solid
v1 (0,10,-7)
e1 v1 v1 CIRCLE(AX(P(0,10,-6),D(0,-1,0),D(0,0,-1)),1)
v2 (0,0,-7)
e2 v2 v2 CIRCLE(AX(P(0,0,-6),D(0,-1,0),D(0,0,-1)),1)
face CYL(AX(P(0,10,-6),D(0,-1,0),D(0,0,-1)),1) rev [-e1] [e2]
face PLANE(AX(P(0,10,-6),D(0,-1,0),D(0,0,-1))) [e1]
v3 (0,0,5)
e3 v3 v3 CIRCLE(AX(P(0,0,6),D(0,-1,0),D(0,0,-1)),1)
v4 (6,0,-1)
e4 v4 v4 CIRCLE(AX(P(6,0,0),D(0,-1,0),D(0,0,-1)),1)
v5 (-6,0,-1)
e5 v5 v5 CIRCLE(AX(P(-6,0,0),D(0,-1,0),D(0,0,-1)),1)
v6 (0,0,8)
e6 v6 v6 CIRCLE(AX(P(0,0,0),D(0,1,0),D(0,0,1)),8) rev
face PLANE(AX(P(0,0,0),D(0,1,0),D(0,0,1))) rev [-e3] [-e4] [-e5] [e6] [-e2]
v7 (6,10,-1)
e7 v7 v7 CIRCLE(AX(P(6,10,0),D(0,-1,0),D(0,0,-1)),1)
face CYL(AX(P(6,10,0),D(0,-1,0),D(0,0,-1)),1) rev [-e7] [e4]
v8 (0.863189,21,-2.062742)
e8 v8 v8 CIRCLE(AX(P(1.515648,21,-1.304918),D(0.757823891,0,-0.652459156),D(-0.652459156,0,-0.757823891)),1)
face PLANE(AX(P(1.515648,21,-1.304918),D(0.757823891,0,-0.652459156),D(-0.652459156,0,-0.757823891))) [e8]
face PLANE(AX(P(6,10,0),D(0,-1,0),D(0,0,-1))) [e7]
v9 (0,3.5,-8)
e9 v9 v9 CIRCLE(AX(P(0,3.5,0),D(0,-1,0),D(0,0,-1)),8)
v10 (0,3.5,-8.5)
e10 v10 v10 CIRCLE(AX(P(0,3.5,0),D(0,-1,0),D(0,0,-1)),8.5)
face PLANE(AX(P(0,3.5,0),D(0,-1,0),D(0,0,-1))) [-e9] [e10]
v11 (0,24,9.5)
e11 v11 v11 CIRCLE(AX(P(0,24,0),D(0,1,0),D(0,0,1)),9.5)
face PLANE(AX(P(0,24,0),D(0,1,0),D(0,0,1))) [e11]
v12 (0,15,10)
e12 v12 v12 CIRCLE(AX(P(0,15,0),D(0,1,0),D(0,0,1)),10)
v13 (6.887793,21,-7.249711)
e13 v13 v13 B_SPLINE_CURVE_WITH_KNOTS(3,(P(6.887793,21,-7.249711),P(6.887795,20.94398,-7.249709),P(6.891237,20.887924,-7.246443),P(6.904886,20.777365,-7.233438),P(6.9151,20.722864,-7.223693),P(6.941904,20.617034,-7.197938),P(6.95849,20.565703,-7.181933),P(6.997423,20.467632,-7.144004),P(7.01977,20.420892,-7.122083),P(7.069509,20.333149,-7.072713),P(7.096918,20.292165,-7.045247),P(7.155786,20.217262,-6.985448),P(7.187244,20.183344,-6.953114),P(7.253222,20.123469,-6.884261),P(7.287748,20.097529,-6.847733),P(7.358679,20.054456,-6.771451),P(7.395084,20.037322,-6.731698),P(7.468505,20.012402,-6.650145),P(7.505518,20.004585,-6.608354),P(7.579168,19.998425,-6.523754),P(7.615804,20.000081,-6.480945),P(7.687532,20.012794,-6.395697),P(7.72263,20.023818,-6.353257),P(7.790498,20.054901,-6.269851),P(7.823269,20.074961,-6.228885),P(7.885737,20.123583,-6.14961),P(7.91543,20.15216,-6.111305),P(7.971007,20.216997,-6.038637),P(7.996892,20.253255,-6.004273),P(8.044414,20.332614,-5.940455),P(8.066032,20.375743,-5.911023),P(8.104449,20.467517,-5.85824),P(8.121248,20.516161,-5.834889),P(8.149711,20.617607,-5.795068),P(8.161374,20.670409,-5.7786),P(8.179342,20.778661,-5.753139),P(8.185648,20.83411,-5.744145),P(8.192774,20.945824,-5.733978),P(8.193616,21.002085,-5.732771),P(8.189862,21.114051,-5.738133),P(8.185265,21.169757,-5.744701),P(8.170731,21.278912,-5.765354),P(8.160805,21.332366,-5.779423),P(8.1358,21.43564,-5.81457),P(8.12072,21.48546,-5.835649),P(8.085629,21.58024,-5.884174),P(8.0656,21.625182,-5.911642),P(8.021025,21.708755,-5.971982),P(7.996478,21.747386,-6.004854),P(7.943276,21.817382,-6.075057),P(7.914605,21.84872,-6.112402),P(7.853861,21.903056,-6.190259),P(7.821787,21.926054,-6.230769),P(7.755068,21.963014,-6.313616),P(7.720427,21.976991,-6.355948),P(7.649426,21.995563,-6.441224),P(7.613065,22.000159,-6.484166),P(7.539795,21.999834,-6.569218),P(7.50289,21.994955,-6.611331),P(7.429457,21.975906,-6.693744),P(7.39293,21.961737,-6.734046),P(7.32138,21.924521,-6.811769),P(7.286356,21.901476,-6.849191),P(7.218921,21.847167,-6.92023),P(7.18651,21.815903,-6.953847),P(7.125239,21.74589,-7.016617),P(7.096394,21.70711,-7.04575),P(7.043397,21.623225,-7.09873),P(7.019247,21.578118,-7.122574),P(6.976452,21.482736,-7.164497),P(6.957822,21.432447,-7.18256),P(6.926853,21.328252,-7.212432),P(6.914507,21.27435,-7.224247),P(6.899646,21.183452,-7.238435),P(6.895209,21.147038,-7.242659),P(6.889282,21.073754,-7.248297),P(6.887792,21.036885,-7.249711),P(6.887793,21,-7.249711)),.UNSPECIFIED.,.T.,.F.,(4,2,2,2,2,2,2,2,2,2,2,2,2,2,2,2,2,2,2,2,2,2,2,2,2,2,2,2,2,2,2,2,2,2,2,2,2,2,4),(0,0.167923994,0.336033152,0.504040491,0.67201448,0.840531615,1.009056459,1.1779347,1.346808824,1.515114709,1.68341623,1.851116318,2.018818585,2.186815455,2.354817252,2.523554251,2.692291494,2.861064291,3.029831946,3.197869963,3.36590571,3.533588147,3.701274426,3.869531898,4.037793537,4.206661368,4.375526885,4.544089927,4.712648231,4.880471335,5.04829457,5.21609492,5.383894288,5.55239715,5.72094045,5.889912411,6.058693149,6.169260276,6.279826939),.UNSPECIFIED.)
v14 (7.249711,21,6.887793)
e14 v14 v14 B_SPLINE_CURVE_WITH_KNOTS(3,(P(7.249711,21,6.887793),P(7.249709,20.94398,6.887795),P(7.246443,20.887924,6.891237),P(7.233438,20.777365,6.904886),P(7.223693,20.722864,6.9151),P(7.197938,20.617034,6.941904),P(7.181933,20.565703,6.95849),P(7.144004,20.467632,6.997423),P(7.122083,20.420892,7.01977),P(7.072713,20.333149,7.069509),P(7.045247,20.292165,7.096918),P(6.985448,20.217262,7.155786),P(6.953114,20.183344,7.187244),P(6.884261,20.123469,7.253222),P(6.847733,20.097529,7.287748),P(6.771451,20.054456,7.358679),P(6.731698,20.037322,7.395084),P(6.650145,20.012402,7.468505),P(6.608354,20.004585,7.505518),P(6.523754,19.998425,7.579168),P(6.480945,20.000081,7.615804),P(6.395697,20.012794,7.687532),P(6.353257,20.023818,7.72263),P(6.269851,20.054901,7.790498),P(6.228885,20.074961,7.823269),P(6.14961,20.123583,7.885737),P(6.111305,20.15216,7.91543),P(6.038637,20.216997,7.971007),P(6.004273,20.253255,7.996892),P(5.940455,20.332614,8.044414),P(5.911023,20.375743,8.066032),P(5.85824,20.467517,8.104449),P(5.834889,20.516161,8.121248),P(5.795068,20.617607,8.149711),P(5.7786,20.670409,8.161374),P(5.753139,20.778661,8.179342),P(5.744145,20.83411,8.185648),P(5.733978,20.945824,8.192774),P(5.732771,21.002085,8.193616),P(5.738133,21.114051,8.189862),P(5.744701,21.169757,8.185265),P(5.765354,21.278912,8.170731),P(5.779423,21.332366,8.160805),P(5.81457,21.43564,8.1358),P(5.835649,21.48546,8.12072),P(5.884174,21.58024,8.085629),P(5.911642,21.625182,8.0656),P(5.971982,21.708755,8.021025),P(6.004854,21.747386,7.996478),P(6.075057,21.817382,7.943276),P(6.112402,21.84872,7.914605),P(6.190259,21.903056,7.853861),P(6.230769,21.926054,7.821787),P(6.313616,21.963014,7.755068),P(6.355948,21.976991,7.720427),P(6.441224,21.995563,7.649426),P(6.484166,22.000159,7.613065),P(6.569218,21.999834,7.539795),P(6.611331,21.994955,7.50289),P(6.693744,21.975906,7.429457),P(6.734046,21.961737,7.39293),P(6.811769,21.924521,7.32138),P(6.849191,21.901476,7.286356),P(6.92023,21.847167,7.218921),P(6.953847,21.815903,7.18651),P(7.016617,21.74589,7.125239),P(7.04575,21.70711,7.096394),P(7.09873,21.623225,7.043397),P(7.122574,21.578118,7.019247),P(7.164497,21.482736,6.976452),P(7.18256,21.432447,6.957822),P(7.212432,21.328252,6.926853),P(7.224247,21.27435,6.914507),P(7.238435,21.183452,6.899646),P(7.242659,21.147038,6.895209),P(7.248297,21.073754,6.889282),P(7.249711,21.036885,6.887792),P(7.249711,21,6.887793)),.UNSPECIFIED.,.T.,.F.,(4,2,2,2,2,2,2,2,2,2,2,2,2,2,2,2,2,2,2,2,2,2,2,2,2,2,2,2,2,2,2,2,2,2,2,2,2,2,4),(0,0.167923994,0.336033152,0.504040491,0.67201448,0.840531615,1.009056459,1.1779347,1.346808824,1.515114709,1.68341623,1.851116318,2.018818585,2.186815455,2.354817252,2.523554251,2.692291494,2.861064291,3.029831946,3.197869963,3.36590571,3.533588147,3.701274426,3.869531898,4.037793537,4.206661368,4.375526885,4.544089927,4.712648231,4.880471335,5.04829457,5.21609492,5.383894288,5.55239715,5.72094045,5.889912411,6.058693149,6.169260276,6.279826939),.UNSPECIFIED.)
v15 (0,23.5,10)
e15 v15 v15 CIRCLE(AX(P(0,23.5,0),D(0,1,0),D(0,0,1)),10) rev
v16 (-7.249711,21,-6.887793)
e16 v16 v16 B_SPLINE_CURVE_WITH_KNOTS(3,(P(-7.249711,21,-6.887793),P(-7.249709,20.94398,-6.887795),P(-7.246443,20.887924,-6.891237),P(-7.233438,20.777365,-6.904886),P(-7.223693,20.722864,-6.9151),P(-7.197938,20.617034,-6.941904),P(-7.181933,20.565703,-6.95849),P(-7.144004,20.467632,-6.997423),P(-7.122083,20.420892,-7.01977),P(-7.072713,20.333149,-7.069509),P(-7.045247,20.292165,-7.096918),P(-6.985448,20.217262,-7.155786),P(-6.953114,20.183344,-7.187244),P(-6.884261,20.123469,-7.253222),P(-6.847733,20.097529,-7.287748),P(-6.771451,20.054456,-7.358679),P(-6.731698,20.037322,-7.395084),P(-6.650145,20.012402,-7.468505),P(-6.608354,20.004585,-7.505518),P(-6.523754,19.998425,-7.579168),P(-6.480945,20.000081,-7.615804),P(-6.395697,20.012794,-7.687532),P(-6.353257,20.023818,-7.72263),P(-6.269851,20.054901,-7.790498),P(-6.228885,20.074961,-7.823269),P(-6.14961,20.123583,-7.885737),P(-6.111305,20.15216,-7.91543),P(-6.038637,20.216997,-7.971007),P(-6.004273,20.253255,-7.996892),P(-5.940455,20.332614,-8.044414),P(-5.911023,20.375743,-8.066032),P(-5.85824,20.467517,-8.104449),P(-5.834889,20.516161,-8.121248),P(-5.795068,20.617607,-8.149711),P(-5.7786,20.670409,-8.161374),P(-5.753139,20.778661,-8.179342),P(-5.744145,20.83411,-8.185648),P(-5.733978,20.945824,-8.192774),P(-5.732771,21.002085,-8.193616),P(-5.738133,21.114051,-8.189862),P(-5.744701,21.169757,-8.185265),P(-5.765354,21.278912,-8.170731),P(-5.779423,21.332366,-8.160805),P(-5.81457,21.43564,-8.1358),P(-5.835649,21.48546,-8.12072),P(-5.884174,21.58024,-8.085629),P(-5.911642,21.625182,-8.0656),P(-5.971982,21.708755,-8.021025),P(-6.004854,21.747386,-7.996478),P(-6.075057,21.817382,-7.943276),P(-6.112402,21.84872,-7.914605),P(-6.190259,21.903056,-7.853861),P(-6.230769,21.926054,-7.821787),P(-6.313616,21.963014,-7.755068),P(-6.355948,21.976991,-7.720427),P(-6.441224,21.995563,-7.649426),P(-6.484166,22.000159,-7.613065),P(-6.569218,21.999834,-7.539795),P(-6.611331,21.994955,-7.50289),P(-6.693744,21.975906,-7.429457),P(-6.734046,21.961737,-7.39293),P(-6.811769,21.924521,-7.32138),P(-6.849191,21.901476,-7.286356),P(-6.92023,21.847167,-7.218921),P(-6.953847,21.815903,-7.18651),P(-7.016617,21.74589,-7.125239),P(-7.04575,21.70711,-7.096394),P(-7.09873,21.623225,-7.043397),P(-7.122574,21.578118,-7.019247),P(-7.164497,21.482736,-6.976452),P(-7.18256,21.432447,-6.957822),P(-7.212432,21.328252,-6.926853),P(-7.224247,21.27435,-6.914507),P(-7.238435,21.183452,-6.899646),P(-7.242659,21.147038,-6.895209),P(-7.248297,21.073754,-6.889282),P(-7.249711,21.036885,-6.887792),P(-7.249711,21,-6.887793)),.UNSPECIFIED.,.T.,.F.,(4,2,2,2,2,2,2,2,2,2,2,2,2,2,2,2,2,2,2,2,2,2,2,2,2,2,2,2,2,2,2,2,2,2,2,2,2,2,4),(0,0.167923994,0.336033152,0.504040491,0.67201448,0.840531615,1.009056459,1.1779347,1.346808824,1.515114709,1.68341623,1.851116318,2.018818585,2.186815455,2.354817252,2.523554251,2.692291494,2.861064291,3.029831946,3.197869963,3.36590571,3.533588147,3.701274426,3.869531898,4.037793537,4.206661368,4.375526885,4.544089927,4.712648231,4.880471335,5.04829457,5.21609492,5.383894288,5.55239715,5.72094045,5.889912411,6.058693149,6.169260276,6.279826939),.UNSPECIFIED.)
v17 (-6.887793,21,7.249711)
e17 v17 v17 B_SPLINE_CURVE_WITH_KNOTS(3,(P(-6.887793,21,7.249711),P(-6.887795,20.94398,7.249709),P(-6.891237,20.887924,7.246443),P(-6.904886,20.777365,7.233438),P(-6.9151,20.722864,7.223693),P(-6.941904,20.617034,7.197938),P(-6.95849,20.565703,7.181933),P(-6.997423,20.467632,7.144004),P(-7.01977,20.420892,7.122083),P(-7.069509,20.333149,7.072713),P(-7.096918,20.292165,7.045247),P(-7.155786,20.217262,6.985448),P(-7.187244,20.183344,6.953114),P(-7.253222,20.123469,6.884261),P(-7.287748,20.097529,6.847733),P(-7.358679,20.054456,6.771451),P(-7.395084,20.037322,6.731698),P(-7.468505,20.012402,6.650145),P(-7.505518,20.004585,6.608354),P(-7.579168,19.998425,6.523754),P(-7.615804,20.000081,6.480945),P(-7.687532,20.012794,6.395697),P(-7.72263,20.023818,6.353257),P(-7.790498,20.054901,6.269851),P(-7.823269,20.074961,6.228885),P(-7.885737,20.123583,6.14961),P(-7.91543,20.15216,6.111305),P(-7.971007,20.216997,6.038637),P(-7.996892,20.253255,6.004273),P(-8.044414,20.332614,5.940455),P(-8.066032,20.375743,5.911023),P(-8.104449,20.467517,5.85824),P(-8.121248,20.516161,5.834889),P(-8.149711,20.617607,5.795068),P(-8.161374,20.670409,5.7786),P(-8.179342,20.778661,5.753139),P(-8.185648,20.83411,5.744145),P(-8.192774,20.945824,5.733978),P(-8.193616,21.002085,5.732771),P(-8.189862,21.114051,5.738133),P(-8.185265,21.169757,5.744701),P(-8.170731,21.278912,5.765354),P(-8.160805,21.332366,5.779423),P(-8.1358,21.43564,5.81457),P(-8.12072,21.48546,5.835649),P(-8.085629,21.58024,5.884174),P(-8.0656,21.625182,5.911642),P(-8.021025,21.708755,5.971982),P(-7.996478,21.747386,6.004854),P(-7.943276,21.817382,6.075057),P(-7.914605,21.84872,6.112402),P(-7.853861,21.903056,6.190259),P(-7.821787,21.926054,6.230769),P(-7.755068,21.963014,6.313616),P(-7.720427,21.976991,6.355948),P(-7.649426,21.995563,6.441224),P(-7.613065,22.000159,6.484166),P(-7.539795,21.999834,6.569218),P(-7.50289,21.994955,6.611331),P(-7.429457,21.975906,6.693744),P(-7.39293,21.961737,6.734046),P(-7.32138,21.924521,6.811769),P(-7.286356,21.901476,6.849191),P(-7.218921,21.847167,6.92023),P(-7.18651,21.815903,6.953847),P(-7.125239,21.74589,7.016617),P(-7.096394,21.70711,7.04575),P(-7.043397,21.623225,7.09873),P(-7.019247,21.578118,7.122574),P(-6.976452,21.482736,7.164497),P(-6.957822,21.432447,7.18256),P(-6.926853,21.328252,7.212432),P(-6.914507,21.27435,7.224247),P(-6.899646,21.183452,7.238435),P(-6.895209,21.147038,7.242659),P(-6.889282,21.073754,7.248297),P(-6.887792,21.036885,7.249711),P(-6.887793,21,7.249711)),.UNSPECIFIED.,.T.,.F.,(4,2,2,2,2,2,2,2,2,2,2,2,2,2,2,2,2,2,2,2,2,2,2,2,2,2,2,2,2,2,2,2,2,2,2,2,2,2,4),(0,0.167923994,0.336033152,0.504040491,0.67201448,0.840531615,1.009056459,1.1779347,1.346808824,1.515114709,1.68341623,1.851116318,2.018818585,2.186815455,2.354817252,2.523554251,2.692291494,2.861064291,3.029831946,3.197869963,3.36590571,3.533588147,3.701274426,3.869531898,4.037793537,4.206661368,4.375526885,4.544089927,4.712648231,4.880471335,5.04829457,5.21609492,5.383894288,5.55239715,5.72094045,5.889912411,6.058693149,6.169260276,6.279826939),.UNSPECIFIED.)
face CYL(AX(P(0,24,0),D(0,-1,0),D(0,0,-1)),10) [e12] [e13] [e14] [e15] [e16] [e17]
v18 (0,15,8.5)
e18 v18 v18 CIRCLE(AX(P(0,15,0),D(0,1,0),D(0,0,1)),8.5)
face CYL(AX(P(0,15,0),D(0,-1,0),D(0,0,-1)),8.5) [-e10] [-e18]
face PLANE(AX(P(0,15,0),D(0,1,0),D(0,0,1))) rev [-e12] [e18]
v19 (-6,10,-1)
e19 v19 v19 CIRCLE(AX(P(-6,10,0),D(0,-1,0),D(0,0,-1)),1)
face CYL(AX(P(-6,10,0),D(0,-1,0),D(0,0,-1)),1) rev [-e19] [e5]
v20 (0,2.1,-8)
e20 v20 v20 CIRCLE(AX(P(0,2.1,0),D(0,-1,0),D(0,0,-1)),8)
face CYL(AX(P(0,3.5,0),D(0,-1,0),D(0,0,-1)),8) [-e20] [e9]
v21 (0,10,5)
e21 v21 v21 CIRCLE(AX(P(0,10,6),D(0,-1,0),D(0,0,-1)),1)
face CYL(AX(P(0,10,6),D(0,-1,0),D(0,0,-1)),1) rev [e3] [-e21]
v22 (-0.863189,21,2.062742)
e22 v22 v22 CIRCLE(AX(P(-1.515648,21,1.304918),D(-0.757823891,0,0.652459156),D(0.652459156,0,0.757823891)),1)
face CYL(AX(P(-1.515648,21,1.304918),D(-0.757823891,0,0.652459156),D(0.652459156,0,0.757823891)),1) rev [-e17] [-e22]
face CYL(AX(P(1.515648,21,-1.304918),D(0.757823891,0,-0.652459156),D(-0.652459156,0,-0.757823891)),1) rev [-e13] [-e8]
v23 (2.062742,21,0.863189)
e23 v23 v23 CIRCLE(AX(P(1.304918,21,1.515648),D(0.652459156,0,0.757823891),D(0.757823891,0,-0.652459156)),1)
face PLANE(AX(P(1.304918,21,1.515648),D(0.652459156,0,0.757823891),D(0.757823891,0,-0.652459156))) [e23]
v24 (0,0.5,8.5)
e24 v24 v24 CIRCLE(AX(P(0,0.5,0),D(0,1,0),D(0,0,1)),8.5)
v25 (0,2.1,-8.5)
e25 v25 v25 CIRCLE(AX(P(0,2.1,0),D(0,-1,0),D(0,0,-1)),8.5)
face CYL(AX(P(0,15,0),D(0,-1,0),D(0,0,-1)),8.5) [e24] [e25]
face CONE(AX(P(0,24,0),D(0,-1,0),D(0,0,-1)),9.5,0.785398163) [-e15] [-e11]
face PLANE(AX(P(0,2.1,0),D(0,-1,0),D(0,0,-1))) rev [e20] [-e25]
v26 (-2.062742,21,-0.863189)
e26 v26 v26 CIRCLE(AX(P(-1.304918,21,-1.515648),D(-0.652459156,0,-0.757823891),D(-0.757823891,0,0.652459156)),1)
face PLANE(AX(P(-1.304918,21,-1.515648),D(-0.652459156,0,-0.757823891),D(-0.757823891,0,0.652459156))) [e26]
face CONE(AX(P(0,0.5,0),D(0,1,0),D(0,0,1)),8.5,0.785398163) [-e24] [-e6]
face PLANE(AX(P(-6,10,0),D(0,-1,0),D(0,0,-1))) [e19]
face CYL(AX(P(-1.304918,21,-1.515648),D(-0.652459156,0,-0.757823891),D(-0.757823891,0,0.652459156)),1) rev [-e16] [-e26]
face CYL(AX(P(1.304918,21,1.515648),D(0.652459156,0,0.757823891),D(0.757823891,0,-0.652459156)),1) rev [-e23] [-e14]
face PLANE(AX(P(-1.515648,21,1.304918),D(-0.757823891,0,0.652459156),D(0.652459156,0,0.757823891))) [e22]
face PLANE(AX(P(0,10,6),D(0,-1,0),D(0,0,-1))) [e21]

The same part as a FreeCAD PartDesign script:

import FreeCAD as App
import Part
import Sketcher

V = App.Vector
Q = App.Units.Quantity


def edges_at(feature, points):
    """Names of the edges that pass closest to the given points."""
    edges = feature.Shape.Edges
    near = lambda p: min(range(len(edges)), key=lambda i: edges[i].distToShape(Part.Vertex(*p))[0])
    return sorted({f"Edge{near(p) + 1}" for p in points})

doc = App.newDocument("Part")
body = doc.addObject("PartDesign::Body", "Body")

# Sketch on XZ plane
sketch1 = body.newObject("Sketcher::SketchObject", "Sketch")
sketch1.AttachmentSupport = (doc.getObject("XZ_Plane"), [""])
sketch1.MapMode = "FlatFace"
sketch1.addGeometry(Part.Circle(V(0, 0, 0), V(0, 0, 1), 8), False)
sketch1.addConstraint([
    Sketcher.Constraint("Coincident", 0, 3, -1, 1),
    Sketcher.Constraint("Diameter", 0, Q("17 mm")),
])
pad1 = body.newObject("PartDesign::Pad", "Pad")
pad1.Profile = sketch1
pad1.Length = 15
pad1.Reversed = True

# Sketch on XZ plane
sketch2 = body.newObject("Sketcher::SketchObject", "Sketch001")
sketch2.AttachmentSupport = (doc.getObject("XZ_Plane"), [""])
sketch2.MapMode = "FlatFace"
sketch2.AttachmentOffset = App.Placement(V(0, 0, -15), App.Rotation())
sketch2.addGeometry(Part.Circle(V(0, 0, 0), V(0, 0, 1), 10), False)
sketch2.addConstraint([
    Sketcher.Constraint("Coincident", 0, 3, -1, 1),
    Sketcher.Constraint("Diameter", 0, Q("20 mm")),
])
pad2 = body.newObject("PartDesign::Pad", "Pad001")
pad2.Profile = sketch2
pad2.Length = 9
pad2.Reversed = True

# Sketch on XZ plane
sketch3 = body.newObject("Sketcher::SketchObject", "Sketch002")
sketch3.AttachmentSupport = (doc.getObject("XZ_Plane"), [""])
sketch3.MapMode = "FlatFace"
sketch3.addGeometry([
    Part.Circle(V(0, 6, 0), V(0, 0, 1), 1),
    Part.Circle(V(6, 0, 0), V(0, 0, 1), 1),
    Part.Circle(V(0, -6, 0), V(0, 0, 1), 1),
    Part.Circle(V(-6, 0, 0), V(0, 0, 1), 1),
], False)
sketch3.addConstraint([
    Sketcher.Constraint("Equal", 0, 1),
    Sketcher.Constraint("Equal", 1, 2),
    Sketcher.Constraint("Equal", 2, 3),
    Sketcher.Constraint("Symmetric", 0, 3, 2, 3, -1, 1),
    Sketcher.Constraint("Symmetric", 1, 3, 3, 3, -1, 1),
    Sketcher.Constraint("PointOnObject", 0, 3, -2),
    Sketcher.Constraint("PointOnObject", 1, 3, -1),
    Sketcher.Constraint("Diameter", 0, Q("2 mm")),
    Sketcher.Constraint("DistanceY", -1, 1, 0, 3, Q("6 mm")),
    Sketcher.Constraint("DistanceX", -1, 1, 1, 3, Q("6 mm")),
])
pocket1 = body.newObject("PartDesign::Pocket", "Pocket")
pocket1.Profile = sketch3
pocket1.Length = 10

# Sketch on XZ plane
sketch4 = body.newObject("Sketcher::SketchObject", "Sketch003")
sketch4.AttachmentSupport = (doc.getObject("XZ_Plane"), [""])
sketch4.MapMode = "FlatFace"
sketch4.AttachmentOffset = App.Placement(V(0, 0, -2.1), App.Rotation())
sketch4.addGeometry([
    Part.Circle(V(0, 0, 0), V(0, 0, 1), 8),
    Part.Circle(V(0, 0, 0), V(0, 0, 1), 8),
], False)
sketch4.addConstraint([
    Sketcher.Constraint("Coincident", 0, 3, -1, 1),
    Sketcher.Constraint("Coincident", 1, 3, -1, 1),
    Sketcher.Constraint("Diameter", 0, Q("17 mm")),
    Sketcher.Constraint("Diameter", 1, Q("16 mm")),
])
pocket2 = body.newObject("PartDesign::Pocket", "Pocket001")
pocket2.Profile = sketch4
pocket2.Length = 1.4
doc.recompute()

chamfer = body.newObject("PartDesign::Chamfer", "Chamfer")
chamfer.Base = (pocket2, edges_at(pocket2, [(0, 0, -8.5), (0, 24, -10)]))
chamfer.Size = 0.5

# Sketch on an angled plane
sketch5 = body.newObject("Sketcher::SketchObject", "Sketch004")
sketch5.Placement = App.Placement(V(6.524592, 0, 7.578239), App.Rotation(V(0.757823891, 0, -0.652459156), V(0, 1, 0), V(0.652459156, 0, 0.757823891), "ZXY"))
sketch5.addGeometry(Part.Circle(V(0, 21, 0), V(0, 0, 1), 1), False)
sketch5.addConstraint([
    Sketcher.Constraint("PointOnObject", 0, 3, -2),
    Sketcher.Constraint("Diameter", 0, Q("2 mm")),
    Sketcher.Constraint("DistanceY", -1, 1, 0, 3, Q("21 mm")),
])
pocket3 = body.newObject("PartDesign::Pocket", "Pocket002")
pocket3.Profile = sketch5
pocket3.Length = 8
doc.recompute()

polarpattern = body.newObject("PartDesign::PolarPattern", "PolarPattern")
polarpattern.Originals = [pocket3]
polarpattern.Axis = (doc.getObject("Y_Axis"), [""])
polarpattern.Angle = 360
polarpattern.Occurrences = 4
body.Tip = polarpattern

doc.recompute()
